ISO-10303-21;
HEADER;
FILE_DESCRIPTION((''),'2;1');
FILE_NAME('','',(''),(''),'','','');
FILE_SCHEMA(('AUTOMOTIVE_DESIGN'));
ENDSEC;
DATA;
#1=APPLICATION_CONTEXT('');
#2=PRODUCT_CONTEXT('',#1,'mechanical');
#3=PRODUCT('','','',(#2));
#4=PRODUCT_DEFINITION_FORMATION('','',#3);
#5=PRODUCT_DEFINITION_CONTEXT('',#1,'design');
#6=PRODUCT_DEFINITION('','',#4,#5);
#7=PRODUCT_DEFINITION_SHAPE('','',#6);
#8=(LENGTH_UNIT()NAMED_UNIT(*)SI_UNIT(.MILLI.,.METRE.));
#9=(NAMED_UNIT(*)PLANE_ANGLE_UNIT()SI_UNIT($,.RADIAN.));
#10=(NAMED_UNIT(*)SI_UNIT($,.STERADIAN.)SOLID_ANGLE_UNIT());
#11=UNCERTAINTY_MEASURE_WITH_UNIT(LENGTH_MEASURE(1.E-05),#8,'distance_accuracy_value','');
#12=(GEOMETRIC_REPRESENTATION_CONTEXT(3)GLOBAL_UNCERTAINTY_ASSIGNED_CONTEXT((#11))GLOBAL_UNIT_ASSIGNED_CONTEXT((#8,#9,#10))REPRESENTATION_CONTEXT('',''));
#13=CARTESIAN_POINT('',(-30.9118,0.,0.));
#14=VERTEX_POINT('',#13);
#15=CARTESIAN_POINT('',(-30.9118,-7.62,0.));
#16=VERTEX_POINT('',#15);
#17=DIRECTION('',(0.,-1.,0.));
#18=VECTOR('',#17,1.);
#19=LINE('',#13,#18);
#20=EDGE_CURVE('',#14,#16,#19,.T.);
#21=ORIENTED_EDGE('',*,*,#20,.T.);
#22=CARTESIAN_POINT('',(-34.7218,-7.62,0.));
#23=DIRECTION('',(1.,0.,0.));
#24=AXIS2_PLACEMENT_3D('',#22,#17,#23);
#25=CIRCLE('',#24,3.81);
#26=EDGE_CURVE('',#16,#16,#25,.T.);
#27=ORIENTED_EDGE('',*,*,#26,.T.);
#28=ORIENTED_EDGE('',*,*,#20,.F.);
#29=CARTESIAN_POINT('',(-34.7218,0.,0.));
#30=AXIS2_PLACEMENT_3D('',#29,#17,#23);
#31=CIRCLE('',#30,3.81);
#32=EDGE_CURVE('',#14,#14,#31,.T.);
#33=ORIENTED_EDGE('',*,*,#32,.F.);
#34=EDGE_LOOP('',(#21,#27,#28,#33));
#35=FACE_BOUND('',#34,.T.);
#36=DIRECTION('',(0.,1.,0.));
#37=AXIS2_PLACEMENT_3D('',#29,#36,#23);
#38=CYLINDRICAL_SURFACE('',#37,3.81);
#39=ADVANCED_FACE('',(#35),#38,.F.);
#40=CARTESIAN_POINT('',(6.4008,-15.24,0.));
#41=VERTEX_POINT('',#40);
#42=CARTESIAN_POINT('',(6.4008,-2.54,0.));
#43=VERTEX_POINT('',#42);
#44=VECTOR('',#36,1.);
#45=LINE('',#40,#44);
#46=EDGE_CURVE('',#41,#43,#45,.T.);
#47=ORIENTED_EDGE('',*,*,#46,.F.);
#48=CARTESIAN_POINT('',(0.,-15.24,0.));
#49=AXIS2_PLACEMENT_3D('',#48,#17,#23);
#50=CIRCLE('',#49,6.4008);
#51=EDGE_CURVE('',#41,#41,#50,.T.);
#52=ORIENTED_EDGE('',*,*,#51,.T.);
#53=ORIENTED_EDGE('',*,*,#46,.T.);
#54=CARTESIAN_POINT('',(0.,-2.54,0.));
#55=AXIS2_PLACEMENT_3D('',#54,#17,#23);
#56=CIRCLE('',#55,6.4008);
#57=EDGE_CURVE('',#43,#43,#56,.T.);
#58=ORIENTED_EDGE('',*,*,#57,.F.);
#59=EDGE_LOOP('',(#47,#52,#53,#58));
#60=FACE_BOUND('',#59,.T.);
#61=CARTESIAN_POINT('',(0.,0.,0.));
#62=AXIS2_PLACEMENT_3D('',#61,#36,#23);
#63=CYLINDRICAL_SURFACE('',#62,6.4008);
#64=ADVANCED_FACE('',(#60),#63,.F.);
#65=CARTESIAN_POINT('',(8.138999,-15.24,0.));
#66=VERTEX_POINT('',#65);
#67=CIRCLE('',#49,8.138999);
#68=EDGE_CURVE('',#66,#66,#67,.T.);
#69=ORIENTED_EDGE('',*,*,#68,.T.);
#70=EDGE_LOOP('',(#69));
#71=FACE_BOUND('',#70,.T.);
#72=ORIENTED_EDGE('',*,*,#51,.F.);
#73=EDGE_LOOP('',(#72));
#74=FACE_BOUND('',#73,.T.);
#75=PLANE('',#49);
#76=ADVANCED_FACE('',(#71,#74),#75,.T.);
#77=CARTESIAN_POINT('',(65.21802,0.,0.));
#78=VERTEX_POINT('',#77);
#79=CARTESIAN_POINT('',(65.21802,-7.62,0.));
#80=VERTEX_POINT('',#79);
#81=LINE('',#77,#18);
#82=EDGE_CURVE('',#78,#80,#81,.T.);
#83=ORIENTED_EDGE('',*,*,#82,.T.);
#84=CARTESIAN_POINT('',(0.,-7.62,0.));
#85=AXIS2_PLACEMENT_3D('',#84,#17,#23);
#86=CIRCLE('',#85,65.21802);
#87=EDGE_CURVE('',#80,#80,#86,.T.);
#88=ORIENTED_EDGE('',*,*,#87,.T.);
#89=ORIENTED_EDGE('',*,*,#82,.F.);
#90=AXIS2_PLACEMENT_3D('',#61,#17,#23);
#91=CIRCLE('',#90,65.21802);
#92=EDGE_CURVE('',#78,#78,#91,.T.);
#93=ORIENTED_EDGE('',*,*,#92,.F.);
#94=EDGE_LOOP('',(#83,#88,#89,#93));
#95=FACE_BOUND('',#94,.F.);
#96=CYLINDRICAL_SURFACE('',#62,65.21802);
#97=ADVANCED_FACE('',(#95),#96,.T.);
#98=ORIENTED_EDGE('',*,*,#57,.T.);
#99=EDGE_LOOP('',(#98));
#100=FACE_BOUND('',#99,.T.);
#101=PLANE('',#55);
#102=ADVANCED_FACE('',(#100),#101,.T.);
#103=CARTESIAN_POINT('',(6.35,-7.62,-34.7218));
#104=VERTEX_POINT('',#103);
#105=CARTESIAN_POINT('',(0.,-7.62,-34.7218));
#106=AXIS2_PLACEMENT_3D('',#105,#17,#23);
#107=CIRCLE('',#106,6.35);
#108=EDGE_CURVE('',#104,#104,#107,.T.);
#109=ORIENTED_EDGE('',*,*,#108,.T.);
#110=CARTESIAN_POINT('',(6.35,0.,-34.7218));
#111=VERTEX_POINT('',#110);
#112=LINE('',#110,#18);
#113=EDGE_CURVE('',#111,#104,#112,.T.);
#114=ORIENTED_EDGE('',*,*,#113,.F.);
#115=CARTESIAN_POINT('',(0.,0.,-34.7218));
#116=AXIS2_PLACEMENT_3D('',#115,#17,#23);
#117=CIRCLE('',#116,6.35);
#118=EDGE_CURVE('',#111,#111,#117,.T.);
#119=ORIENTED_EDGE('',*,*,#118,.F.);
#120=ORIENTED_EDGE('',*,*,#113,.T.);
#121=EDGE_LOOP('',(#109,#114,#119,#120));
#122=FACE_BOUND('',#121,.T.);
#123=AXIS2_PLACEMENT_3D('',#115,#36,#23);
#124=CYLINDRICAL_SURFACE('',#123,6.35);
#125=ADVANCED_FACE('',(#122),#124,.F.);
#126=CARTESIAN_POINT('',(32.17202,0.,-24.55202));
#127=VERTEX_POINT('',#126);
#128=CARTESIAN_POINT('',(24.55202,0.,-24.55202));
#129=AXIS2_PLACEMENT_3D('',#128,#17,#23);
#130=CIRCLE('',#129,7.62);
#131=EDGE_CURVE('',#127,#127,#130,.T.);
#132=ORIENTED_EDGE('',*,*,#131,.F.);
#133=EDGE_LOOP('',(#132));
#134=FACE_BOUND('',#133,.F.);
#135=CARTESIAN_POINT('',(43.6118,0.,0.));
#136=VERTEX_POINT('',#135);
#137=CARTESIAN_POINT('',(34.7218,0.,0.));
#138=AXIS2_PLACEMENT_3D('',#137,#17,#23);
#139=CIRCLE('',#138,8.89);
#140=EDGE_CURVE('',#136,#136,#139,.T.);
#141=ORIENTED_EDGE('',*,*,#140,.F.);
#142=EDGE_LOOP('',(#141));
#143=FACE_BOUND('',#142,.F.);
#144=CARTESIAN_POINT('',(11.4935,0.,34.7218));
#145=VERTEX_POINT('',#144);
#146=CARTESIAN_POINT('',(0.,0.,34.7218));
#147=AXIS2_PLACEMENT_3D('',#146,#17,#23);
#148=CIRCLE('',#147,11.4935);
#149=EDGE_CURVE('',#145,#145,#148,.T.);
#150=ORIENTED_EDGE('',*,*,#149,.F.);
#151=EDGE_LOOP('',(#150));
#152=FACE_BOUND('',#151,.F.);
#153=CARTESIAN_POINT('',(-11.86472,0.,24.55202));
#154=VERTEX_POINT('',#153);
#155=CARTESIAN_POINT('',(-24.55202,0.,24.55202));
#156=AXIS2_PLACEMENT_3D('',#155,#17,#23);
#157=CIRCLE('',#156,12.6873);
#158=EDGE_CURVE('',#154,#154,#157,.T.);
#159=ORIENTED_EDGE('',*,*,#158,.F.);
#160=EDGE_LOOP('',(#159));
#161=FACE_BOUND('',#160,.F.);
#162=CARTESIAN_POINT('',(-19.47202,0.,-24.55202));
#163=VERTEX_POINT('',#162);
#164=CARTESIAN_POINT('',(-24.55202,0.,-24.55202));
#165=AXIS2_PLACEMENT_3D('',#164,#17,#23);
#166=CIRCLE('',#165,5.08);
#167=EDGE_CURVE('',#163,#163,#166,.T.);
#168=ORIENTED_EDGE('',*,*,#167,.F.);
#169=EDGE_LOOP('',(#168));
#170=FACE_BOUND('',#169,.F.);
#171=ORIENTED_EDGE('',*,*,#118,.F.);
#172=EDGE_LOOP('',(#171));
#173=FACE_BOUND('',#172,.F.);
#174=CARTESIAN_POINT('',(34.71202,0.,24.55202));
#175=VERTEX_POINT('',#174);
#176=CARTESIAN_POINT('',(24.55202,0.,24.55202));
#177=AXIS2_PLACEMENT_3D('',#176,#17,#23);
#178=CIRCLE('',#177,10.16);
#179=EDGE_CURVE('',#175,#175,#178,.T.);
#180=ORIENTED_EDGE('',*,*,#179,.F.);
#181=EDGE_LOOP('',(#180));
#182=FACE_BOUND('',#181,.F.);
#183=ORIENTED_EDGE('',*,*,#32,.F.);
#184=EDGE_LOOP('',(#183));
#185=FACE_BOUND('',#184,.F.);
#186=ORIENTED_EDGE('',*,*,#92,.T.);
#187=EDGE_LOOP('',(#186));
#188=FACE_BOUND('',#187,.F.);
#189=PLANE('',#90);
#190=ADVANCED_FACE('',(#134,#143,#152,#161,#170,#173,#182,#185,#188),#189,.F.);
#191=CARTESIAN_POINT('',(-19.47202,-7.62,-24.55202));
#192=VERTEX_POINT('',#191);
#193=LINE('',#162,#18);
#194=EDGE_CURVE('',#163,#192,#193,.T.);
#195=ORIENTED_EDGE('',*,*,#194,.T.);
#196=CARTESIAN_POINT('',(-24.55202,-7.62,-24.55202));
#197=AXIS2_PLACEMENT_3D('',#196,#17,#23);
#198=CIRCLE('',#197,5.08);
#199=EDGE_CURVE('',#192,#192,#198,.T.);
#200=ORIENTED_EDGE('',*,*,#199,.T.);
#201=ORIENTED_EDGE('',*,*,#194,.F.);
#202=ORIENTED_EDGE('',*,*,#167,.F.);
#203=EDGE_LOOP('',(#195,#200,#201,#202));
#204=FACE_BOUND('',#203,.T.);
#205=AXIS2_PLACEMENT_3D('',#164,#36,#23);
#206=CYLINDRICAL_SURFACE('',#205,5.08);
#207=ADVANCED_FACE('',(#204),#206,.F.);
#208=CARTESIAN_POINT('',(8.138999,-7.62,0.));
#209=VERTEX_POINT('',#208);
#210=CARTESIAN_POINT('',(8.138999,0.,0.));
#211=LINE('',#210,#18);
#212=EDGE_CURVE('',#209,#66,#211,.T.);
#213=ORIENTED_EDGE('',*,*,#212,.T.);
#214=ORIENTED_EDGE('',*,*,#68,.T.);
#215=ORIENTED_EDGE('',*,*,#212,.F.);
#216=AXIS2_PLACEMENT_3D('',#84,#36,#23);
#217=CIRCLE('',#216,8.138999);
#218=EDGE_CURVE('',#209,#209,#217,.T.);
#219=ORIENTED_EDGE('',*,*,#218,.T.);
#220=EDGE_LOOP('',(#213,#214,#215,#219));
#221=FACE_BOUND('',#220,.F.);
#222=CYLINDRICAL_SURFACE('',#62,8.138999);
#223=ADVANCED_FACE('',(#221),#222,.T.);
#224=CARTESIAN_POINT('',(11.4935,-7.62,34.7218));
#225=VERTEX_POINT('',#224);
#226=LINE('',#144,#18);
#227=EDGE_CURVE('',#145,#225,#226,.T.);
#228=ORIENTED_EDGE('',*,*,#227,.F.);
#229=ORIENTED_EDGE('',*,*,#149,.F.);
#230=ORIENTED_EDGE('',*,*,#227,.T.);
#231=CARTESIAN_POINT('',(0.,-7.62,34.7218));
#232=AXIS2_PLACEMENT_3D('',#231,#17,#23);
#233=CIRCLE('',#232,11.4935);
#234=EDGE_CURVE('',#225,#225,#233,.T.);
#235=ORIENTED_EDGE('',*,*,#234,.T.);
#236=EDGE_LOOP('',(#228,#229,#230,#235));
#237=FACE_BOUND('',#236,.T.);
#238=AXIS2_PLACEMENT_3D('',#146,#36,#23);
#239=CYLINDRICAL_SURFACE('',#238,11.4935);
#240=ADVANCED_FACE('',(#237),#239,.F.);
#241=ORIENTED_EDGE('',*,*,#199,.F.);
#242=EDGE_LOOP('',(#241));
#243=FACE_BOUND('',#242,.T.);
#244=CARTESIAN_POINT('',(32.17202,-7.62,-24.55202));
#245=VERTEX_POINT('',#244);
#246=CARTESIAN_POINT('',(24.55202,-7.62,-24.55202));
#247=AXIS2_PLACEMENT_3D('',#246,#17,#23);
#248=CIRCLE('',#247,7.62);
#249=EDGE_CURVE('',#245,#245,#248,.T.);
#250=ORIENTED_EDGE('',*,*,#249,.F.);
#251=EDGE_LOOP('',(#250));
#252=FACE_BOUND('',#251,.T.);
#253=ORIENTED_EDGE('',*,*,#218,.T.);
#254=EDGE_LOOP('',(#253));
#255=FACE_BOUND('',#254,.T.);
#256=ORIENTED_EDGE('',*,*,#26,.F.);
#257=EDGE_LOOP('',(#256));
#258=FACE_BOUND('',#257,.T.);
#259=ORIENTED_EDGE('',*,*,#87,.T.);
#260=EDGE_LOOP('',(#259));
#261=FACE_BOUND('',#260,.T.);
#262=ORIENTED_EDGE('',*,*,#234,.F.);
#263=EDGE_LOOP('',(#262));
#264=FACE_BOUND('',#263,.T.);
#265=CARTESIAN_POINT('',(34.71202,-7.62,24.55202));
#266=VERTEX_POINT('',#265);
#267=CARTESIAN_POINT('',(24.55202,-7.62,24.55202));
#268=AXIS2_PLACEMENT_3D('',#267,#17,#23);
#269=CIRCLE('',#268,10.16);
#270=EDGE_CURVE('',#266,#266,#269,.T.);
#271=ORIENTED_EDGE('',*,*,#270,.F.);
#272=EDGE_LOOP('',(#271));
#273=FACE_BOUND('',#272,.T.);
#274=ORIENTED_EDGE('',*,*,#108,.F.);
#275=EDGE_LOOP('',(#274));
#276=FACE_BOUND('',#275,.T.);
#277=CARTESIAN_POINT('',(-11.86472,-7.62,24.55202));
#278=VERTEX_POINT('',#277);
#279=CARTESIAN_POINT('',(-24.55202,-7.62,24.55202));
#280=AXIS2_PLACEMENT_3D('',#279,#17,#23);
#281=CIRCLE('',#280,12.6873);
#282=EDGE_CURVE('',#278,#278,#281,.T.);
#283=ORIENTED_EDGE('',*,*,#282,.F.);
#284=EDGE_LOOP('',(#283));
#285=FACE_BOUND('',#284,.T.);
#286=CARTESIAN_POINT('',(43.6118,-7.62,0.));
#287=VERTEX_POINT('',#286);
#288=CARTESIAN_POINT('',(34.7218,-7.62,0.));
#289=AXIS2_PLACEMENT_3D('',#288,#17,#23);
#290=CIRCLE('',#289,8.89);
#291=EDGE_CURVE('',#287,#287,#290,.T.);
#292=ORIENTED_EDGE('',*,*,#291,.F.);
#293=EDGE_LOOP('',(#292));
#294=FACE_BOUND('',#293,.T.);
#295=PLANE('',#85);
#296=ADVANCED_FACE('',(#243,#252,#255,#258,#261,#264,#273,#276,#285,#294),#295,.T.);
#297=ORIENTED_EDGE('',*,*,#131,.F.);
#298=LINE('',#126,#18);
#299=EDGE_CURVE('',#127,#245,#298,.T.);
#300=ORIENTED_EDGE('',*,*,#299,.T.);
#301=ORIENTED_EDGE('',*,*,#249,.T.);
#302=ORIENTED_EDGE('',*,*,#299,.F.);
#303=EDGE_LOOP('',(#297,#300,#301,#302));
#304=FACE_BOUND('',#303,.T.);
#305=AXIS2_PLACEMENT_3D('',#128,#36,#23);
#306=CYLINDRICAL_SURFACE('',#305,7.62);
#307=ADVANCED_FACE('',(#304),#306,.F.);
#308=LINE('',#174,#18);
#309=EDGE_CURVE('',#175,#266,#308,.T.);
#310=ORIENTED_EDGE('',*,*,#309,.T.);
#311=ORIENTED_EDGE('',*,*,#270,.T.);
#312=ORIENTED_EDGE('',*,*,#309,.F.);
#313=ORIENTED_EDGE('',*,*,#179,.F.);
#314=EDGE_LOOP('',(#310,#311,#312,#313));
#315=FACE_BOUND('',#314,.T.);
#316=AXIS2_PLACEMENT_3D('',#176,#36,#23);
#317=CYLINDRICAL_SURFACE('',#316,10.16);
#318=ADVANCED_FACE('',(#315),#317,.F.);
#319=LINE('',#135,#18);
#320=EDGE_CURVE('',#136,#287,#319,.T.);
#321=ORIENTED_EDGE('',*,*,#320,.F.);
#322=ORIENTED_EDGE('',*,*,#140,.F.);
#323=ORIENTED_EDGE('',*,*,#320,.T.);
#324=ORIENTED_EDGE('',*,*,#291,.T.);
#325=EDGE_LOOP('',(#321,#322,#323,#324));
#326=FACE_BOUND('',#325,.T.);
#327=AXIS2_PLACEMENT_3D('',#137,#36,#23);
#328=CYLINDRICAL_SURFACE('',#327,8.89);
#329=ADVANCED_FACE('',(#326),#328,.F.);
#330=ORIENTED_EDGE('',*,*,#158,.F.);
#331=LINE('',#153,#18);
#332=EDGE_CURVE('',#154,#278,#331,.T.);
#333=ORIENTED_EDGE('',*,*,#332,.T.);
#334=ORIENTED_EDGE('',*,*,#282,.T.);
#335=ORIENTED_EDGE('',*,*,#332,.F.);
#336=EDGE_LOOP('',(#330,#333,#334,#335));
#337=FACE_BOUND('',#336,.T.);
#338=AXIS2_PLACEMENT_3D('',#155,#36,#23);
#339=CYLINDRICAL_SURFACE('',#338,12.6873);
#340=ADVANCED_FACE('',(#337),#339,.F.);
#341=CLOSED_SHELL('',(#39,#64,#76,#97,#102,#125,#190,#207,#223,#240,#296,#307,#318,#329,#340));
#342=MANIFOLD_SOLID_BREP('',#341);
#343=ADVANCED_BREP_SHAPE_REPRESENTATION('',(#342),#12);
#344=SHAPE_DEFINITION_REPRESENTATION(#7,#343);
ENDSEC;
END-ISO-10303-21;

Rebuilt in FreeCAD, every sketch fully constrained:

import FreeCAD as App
import Part
import Sketcher
Q = App.Units.Quantity

doc = App.newDocument("Part")
body = doc.addObject("PartDesign::Body", "Body")

# Sketch on XZ plane
sketch1 = body.newObject("Sketcher::SketchObject", "Sketch")
sketch1.AttachmentSupport = (doc.getObject("XZ_Plane"), [""])
sketch1.MapMode = "FlatFace"
sketch1.addGeometry(Part.Circle(App.Vector(0, 0, 0), App.Vector(0, 0, 1), 65.2), False)
sketch1.addGeometry(Part.Circle(App.Vector(-24.6, -24.6, 0), App.Vector(0, 0, 1), 5.1), False)
sketch1.addGeometry(Part.Circle(App.Vector(0, -34.7, 0), App.Vector(0, 0, 1), 6.3), False)
sketch1.addGeometry(Part.Circle(App.Vector(-34.7, 0, 0), App.Vector(0, 0, 1), 3.8), False)
sketch1.addGeometry(Part.Circle(App.Vector(24.6, -24.6, 0), App.Vector(0, 0, 1), 7.6), False)
sketch1.addGeometry(Part.Circle(App.Vector(34.7, 0, 0), App.Vector(0, 0, 1), 8.9), False)
sketch1.addGeometry(Part.Circle(App.Vector(-24.6, 24.6, 0), App.Vector(0, 0, 1), 12.7), False)
sketch1.addGeometry(Part.Circle(App.Vector(0, 34.7, 0), App.Vector(0, 0, 1), 11.5), False)
sketch1.addGeometry(Part.Circle(App.Vector(24.6, 24.6, 0), App.Vector(0, 0, 1), 10.2), False)
sketch1.addConstraint(Sketcher.Constraint("Coincident", 0, 3, -1, 1))
sketch1.addConstraint(Sketcher.Constraint("Symmetric", 3, 3, 5, 3, -1, 1))
sketch1.addConstraint(Sketcher.Constraint("Symmetric", 4, 3, 6, 3, -1, 1))
sketch1.addConstraint(Sketcher.Constraint("Symmetric", 2, 3, 7, 3, -1, 1))
sketch1.addConstraint(Sketcher.Constraint("Symmetric", 1, 3, 8, 3, -1, 1))
sketch1.addConstraint(Sketcher.Constraint("Symmetric", 1, 3, 4, 3, -2))
sketch1.addConstraint(Sketcher.Constraint("PointOnObject", 2, 3, -2))
sketch1.addConstraint(Sketcher.Constraint("PointOnObject", 3, 3, -1))
sketch1.addConstraint(Sketcher.Constraint("Diameter", 1, Q("0.4 in")))
sketch1.addConstraint(Sketcher.Constraint("Diameter", 2, Q("0.5 in")))
sketch1.addConstraint(Sketcher.Constraint("Diameter", 3, Q("0.3 in")))
sketch1.addConstraint(Sketcher.Constraint("Diameter", 4, Q("0.6 in")))
sketch1.addConstraint(Sketcher.Constraint("Diameter", 5, Q("0.7 in")))
sketch1.addConstraint(Sketcher.Constraint("Diameter", 8, Q("0.8 in")))
sketch1.addConstraint(Sketcher.Constraint("Diameter", 6, Q("0.999 in")))
sketch1.addConstraint(Sketcher.Constraint("Diameter", 7, Q("0.905 in")))
sketch1.addConstraint(Sketcher.Constraint("Diameter", 0, Q("130.43604 mm")))
sketch1.addConstraint(Sketcher.Constraint("DistanceY", 2, 3, -1, 1, Q("1.367 in")))
sketch1.addConstraint(Sketcher.Constraint("DistanceX", 3, 3, -1, 1, Q("1.367 in")))
sketch1.addConstraint(Sketcher.Constraint("DistanceX", 1, 3, -1, 1, Q("24.55202 mm")))
sketch1.addConstraint(Sketcher.Constraint("DistanceY", 1, 3, -1, 1, Q("24.55202 mm")))
pad1 = body.newObject("PartDesign::Pad", "Pad")
pad1.Profile = sketch1
pad1.Length = Q("0.3 in")

# Sketch on XZ plane
sketch2 = body.newObject("Sketcher::SketchObject", "Sketch001")
sketch2.AttachmentSupport = (doc.getObject("XZ_Plane"), [""])
sketch2.MapMode = "FlatFace"
sketch2.addGeometry(Part.Circle(App.Vector(0, 0, 0), App.Vector(0, 0, 1), 8), False)
sketch2.addGeometry(Part.Circle(App.Vector(0, 0, 0), App.Vector(0, 0, 1), 6), False)
sketch2.addConstraint(Sketcher.Constraint("Coincident", 0, 3, -1, 1))
sketch2.addConstraint(Sketcher.Constraint("Coincident", 1, 3, -1, 1))
sketch2.addConstraint(Sketcher.Constraint("Diameter", 1, Q("0.504 in")))
sketch2.addConstraint(Sketcher.Constraint("Diameter", 0, Q("16.277998 mm")))
pad2 = body.newObject("PartDesign::Pad", "Pad001")
pad2.Profile = sketch2
pad2.Length = Q("0.6 in")

# Sketch on XZ plane
sketch3 = body.newObject("Sketcher::SketchObject", "Sketch002")
sketch3.AttachmentSupport = (doc.getObject("XZ_Plane"), [""])
sketch3.MapMode = "FlatFace"
sketch3.AttachmentOffset = App.Placement(App.Vector(0, 0, 0.3 * 25.4), App.Rotation())
sketch3.addGeometry(Part.Circle(App.Vector(0, 0, 0), App.Vector(0, 0, 1), 6), False)
sketch3.addConstraint(Sketcher.Constraint("Coincident", 0, 3, -1, 1))
sketch3.addConstraint(Sketcher.Constraint("Diameter", 0, Q("0.504 in")))
pocket1 = body.newObject("PartDesign::Pocket", "Pocket")
pocket1.Profile = sketch3
pocket1.Length = Q("0.2 in")

doc.recompute()
